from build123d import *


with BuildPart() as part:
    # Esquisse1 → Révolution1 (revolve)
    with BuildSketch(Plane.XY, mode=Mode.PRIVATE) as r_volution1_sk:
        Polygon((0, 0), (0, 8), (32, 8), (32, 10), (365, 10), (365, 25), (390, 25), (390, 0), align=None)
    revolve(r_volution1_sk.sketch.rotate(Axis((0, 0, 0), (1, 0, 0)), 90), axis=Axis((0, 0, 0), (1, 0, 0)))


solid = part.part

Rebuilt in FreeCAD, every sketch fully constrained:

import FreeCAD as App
import Part
import Sketcher

V = App.Vector
Q = App.Units.Quantity


def add_polygon(sketch, points):
    """Adds a closed chain of lines whose ends are joined by coincident constraints."""
    first, n = sketch.GeometryCount, len(points)
    for a, b in zip(points, points[1:] + points[:1]):
        sketch.addGeometry(Part.LineSegment(App.Vector(*a, 0), App.Vector(*b, 0)), False)
    for i in range(n):
        sketch.addConstraint(Sketcher.Constraint("Coincident", first + i, 2, first + (i + 1) % n, 1))

doc = App.newDocument("Part")
body = doc.addObject("PartDesign::Body", "Body")

# Sketch on XY plane
sketch1 = body.newObject("Sketcher::SketchObject", "Sketch")
sketch1.AttachmentSupport = (doc.getObject("XY_Plane"), [""])
sketch1.MapMode = "FlatFace"
add_polygon(sketch1, [(0, 8), (0, 0), (390, 0), (390, 25), (365, 25), (365, 10), (32, 10), (32, 8)])  # lines 0-7
sketch1.addConstraint([
    Sketcher.Constraint("Vertical", 0),
    Sketcher.Constraint("Horizontal", 1),
    Sketcher.Constraint("Vertical", 2),
    Sketcher.Constraint("Horizontal", 3),
    Sketcher.Constraint("Vertical", 4),
    Sketcher.Constraint("Horizontal", 5),
    Sketcher.Constraint("Vertical", 6),
    Sketcher.Constraint("Horizontal", 7),
    Sketcher.Constraint("Coincident", 0, 2, -1, 1),
    Sketcher.Constraint("Equal", 3, 2),
    Sketcher.Constraint("DistanceX", 1, 1, 1, 2, Q("390 mm")),
    Sketcher.Constraint("DistanceX", 3, 2, 3, 1, Q("25 mm")),
    Sketcher.Constraint("DistanceX", 5, 2, 5, 1, Q("333 mm")),
    Sketcher.Constraint("DistanceY", 0, 2, 0, 1, Q("8 mm")),
    Sketcher.Constraint("DistanceY", 4, 2, 4, 1, Q("15 mm")),
])
revolution = body.newObject("PartDesign::Revolution", "Revolution")
revolution.Profile = sketch1
revolution.ReferenceAxis = (sketch1, ["H_Axis"])
revolution.Angle = 360

doc.recompute()
